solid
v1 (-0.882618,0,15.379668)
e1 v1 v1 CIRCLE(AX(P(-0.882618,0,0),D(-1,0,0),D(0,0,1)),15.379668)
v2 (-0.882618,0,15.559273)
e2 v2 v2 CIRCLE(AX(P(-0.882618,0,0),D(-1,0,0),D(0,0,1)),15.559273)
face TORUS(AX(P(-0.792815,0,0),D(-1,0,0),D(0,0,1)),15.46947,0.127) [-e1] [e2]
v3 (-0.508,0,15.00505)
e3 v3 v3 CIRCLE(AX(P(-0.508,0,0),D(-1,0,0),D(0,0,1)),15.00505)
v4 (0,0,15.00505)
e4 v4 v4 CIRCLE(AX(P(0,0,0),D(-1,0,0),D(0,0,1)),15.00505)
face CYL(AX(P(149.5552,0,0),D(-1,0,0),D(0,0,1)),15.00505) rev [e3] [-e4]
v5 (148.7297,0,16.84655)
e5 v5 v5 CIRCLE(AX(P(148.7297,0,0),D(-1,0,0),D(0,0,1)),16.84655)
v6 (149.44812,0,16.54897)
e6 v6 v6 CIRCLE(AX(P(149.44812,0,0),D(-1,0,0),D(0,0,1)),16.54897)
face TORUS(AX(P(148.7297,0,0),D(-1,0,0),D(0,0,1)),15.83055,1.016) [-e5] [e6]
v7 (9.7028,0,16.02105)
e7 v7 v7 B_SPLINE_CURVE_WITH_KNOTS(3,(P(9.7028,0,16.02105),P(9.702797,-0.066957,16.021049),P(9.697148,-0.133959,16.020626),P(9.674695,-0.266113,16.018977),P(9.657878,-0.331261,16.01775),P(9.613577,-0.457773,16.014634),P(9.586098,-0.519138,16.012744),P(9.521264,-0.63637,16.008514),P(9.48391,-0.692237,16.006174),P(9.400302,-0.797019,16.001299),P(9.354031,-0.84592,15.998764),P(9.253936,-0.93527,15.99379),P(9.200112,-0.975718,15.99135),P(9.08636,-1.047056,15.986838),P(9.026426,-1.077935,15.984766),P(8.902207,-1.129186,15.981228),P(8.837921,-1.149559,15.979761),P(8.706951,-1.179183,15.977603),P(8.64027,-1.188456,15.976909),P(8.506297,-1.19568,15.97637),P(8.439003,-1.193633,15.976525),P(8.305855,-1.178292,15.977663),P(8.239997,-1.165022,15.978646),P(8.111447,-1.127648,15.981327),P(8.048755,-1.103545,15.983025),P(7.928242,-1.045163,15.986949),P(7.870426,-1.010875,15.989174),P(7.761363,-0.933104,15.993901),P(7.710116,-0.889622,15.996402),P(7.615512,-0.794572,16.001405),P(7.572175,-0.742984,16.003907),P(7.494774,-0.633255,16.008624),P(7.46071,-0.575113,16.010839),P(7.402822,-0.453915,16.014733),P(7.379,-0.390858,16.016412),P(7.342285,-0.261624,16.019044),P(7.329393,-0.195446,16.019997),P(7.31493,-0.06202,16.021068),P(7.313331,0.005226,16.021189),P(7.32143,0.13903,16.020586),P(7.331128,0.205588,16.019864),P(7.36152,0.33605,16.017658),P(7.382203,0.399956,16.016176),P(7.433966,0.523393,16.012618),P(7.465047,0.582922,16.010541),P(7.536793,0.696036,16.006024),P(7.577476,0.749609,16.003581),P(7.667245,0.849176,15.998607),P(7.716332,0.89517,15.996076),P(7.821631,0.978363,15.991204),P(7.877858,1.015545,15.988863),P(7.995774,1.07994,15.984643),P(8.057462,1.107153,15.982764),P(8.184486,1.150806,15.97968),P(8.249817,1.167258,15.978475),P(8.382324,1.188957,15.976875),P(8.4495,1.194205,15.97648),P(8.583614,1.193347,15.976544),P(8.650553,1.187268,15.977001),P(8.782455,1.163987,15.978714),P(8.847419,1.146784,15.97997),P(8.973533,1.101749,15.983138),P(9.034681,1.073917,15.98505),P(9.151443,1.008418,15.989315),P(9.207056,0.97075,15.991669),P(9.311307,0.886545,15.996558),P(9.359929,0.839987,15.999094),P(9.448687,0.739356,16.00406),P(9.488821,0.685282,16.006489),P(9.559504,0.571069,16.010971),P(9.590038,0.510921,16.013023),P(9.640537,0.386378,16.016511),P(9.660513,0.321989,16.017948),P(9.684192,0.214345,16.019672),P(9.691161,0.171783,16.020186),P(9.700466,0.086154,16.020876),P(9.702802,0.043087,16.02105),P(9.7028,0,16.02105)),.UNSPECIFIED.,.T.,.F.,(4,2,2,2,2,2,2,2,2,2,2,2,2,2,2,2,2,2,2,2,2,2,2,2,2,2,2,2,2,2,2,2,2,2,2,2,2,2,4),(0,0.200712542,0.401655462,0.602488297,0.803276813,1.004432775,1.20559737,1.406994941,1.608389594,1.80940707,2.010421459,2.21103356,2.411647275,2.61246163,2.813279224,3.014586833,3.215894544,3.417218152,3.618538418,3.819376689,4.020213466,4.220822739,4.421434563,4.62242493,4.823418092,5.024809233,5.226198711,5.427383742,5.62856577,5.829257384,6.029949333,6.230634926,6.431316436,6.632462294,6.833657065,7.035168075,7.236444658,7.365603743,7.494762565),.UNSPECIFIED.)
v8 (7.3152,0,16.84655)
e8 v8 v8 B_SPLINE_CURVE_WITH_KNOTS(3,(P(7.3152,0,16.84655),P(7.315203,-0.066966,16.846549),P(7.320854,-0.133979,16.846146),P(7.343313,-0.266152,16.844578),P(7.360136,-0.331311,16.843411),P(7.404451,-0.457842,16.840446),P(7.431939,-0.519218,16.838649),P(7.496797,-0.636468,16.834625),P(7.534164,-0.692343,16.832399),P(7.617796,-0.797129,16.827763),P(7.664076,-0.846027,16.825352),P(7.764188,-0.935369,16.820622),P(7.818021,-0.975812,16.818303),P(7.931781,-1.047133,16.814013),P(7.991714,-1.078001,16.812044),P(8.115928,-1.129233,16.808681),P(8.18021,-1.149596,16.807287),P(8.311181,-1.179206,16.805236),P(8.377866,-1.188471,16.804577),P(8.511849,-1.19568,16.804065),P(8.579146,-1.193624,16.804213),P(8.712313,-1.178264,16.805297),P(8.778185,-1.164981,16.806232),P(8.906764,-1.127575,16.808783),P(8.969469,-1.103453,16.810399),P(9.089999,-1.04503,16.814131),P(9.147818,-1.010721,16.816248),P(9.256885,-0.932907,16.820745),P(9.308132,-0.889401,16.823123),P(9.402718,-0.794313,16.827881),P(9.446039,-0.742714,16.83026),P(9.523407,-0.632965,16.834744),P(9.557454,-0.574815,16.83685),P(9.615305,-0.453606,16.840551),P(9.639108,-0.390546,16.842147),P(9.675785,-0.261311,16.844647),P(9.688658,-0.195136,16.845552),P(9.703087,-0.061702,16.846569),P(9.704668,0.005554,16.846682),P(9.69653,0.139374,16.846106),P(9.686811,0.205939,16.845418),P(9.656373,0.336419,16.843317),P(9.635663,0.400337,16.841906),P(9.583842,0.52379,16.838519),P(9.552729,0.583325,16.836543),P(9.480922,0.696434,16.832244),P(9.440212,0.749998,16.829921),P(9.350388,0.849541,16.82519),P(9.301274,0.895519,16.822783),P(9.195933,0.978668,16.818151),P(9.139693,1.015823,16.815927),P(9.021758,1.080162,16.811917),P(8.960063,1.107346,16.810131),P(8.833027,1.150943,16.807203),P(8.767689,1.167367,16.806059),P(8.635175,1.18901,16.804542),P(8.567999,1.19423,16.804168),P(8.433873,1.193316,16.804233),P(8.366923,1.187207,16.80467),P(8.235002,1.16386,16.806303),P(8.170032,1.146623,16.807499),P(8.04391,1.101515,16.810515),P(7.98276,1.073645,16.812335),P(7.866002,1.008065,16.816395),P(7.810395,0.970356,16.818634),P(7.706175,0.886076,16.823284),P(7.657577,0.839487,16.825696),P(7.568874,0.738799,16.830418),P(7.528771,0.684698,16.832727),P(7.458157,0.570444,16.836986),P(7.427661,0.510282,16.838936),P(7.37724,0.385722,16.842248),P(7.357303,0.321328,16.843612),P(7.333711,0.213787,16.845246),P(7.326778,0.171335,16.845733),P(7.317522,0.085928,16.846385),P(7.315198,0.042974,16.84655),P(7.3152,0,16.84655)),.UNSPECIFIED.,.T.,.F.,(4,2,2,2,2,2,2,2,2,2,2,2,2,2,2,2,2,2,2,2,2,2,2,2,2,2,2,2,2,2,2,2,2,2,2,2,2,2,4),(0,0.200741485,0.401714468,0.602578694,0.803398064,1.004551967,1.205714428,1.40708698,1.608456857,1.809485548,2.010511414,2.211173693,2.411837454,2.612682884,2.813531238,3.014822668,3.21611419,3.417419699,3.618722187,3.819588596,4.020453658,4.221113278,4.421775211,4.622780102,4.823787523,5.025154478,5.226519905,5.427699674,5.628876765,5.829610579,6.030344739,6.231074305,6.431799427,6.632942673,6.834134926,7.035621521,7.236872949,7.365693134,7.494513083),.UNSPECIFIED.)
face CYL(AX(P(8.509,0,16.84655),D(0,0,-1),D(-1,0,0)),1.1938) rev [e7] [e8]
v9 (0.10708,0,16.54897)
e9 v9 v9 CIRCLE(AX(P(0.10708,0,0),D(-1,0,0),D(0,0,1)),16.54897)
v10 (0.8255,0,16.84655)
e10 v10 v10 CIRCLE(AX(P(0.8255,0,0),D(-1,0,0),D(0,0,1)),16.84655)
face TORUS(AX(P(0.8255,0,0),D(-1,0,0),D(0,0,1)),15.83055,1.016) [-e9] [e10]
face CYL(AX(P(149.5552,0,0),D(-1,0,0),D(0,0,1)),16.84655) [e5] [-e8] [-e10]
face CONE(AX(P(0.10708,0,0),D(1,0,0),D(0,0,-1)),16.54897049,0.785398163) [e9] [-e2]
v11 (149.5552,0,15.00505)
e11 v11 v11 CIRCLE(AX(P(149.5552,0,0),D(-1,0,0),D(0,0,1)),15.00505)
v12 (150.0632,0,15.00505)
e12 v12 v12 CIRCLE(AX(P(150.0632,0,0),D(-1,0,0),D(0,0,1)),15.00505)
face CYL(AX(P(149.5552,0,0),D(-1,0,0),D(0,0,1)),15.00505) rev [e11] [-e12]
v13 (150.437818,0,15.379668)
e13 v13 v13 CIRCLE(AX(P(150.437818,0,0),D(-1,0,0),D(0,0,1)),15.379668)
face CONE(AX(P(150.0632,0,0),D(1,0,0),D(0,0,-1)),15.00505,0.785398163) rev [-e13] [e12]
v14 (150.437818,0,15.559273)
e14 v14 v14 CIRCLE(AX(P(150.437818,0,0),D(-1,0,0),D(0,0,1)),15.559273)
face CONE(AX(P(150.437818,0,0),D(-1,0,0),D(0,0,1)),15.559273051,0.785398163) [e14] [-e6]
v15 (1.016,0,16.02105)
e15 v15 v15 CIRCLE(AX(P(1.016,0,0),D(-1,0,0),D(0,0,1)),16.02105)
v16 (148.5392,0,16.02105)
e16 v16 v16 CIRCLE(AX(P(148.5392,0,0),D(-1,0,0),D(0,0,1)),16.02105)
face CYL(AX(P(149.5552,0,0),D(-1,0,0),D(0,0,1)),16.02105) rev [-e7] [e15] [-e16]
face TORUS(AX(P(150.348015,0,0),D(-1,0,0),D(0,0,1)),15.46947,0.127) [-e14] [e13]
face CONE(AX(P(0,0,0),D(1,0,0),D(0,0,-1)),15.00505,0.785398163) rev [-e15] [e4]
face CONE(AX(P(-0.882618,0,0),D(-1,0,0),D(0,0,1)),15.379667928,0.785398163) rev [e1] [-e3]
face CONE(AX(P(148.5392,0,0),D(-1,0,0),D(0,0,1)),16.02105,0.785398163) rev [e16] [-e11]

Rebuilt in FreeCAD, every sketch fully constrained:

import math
import FreeCAD as App
import Part
import Sketcher
Q = App.Units.Quantity

doc = App.newDocument("Part")
params = doc.addObject("Spreadsheet::Sheet", "Params")
for row, (alias, value) in enumerate([
    ("sketch1_radius", "0.04 in"),
    ("sketch1_radius2", "0.005 in"),
    ("sketch1_width", "0.02 in"),
    ("sketch1_width2", "5.808 in"),
    ("sketch1_width3", "5.823 in"),
    ("revolution_angle", "360 deg"),
    ("sketch2_diameter", "0.094 in"),
    ("pocket1_length", "16.84655 mm"),
], start=1):
    params.set(f"A{row}", alias)
    params.set(f"B{row}", "=" + value)
    params.setAlias(f"B{row}", alias)

body = doc.addObject("PartDesign::Body", "Body")

# Sketch on XY plane
sketch1 = body.newObject("Sketcher::SketchObject", "Sketch")
sketch1.AttachmentSupport = (doc.getObject("XY_Plane"), [""])
sketch1.MapMode = "FlatFace"
sketch1.addGeometry(Part.LineSegment(App.Vector(-0.882618, 15.379668, 0), App.Vector(-0.508, 15.00505, 0)), False)
sketch1.addGeometry(Part.LineSegment(App.Vector(-0.508, 15.00505, 0), App.Vector(0, 15.00505, 0)), False)
sketch1.addGeometry(Part.LineSegment(App.Vector(0, 15.00505, 0), App.Vector(1.016, 16.02105, 0)), False)
sketch1.addGeometry(Part.LineSegment(App.Vector(1.016, 16.02105, 0), App.Vector(148.5392, 16.02105, 0)), False)
sketch1.addGeometry(Part.LineSegment(App.Vector(148.5392, 16.02105, 0), App.Vector(149.5552, 15.00505, 0)), False)
sketch1.addGeometry(Part.LineSegment(App.Vector(149.5552, 15.00505, 0), App.Vector(150.0632, 15.00505, 0)), False)
sketch1.addGeometry(Part.LineSegment(App.Vector(150.0632, 15.00505, 0), App.Vector(150.437818, 15.379668, 0)), False)
sketch1.addGeometry(Part.ArcOfCircle(Part.Circle(App.Vector(150.348015, 15.46947, 0), App.Vector(0, 0, 1), 0.127), math.radians(-45), math.radians(45)), False)
sketch1.addGeometry(Part.LineSegment(App.Vector(150.437818, 15.559273, 0), App.Vector(149.44812, 16.54897, 0)), False)
sketch1.addGeometry(Part.ArcOfCircle(Part.Circle(App.Vector(148.7297, 15.83055, 0), App.Vector(0, 0, 1), 1.016), math.radians(45), math.radians(90)), False)
sketch1.addGeometry(Part.LineSegment(App.Vector(148.7297, 16.84655, 0), App.Vector(0.8255, 16.84655, 0)), False)
sketch1.addGeometry(Part.ArcOfCircle(Part.Circle(App.Vector(0.8255, 15.83055, 0), App.Vector(0, 0, 1), 1.016), math.radians(90), math.radians(135)), False)
sketch1.addGeometry(Part.LineSegment(App.Vector(0.10708, 16.54897, 0), App.Vector(-0.882618, 15.559273, 0)), False)
sketch1.addGeometry(Part.ArcOfCircle(Part.Circle(App.Vector(-0.792815, 15.46947, 0), App.Vector(0, 0, 1), 0.127), math.radians(135), math.radians(225)), False)
sketch1.addConstraint(Sketcher.Constraint("Coincident", 0, 2, 1, 1))
sketch1.addConstraint(Sketcher.Constraint("Coincident", 1, 2, 2, 1))
sketch1.addConstraint(Sketcher.Constraint("Coincident", 2, 2, 3, 1))
sketch1.addConstraint(Sketcher.Constraint("Coincident", 3, 2, 4, 1))
sketch1.addConstraint(Sketcher.Constraint("Coincident", 4, 2, 5, 1))
sketch1.addConstraint(Sketcher.Constraint("Coincident", 5, 2, 6, 1))
sketch1.addConstraint(Sketcher.Constraint("Tangent", 6, 2, 7, 1))
sketch1.addConstraint(Sketcher.Constraint("Tangent", 7, 2, 8, 1))
sketch1.addConstraint(Sketcher.Constraint("Tangent", 8, 2, 9, 1))
sketch1.addConstraint(Sketcher.Constraint("Tangent", 9, 2, 10, 1))
sketch1.addConstraint(Sketcher.Constraint("Tangent", 10, 2, 11, 1))
sketch1.addConstraint(Sketcher.Constraint("Tangent", 11, 2, 12, 1))
sketch1.addConstraint(Sketcher.Constraint("Tangent", 12, 2, 13, 1))
sketch1.addConstraint(Sketcher.Constraint("Tangent", 13, 2, 0, 1))
sketch1.addConstraint(Sketcher.Constraint("Horizontal", 1))
sketch1.addConstraint(Sketcher.Constraint("Horizontal", 3))
sketch1.addConstraint(Sketcher.Constraint("Horizontal", 5))
sketch1.addConstraint(Sketcher.Constraint("Horizontal", 10))
sketch1.addConstraint(Sketcher.Constraint("Equal", 9, 11))
sketch1.addConstraint(Sketcher.Constraint("Equal", 7, 13))
sketch1.addConstraint(Sketcher.Constraint("PointOnObject", 1, 2, -2))
sketch1.addConstraint(Sketcher.Constraint("Perpendicular", 0, 2))
sketch1.addConstraint(Sketcher.Constraint("Perpendicular", 2, 4))
sketch1.addConstraint(Sketcher.Constraint("Perpendicular", 4, 6))
sketch1.addConstraint(Sketcher.Constraint("Perpendicular", 6, 8))
sketch1.addConstraint(Sketcher.Constraint("Perpendicular", 8, 12))
sketch1.addConstraint(Sketcher.Constraint("Horizontal", 7, 3, 13, 3))
sketch1.addConstraint(Sketcher.Constraint("Horizontal", 1, 2, 4, 2))
sketch1.addConstraint(Sketcher.Constraint("Horizontal", 8, 2, 11, 2))
sketch1.addConstraint(Sketcher.Constraint("Equal", 1, 5))
sketch1.addConstraint(Sketcher.Constraint("Radius", 9, Q("0.04 in")))
sketch1.addConstraint(Sketcher.Constraint("Radius", 7, Q("0.005 in")))
sketch1.addConstraint(Sketcher.Constraint("DistanceX", 1, 1, 1, 2, Q("0.02 in")))
sketch1.addConstraint(Sketcher.Constraint("DistanceX", 3, 1, 3, 2, Q("5.808 in")))
sketch1.addConstraint(Sketcher.Constraint("DistanceX", 10, 2, 10, 1, Q("5.823 in")))
sketch1.addConstraint(Sketcher.Constraint("DistanceX", -1, 1, 2, 2, Q("0.04 in")))
sketch1.addConstraint(Sketcher.Constraint("DistanceY", 0, 2, 11, 3, Q("0.0325 in")))
sketch1.addConstraint(Sketcher.Constraint("DistanceY", -1, 1, 7, 3, Q("15.46947 mm")))
sketch1.setExpression("Constraints[30]", "Params.sketch1_radius")
sketch1.setExpression("Constraints[31]", "Params.sketch1_radius2")
sketch1.setExpression("Constraints[32]", "Params.sketch1_width")
sketch1.setExpression("Constraints[33]", "Params.sketch1_width2")
sketch1.setExpression("Constraints[34]", "Params.sketch1_width3")
revolution = body.newObject("PartDesign::Revolution", "Revolution")
revolution.Profile = sketch1
revolution.ReferenceAxis = (sketch1, ["H_Axis"])
revolution.setExpression("Angle", "Params.revolution_angle")

# Sketch on XY plane
sketch2 = body.newObject("Sketcher::SketchObject", "Sketch001")
sketch2.AttachmentSupport = (doc.getObject("XY_Plane"), [""])
sketch2.MapMode = "FlatFace"
sketch2.addGeometry(Part.Circle(App.Vector(8.509, 0, 0), App.Vector(0, 0, 1), 1.1938), False)
sketch2.addConstraint(Sketcher.Constraint("PointOnObject", 0, 3, -1))
sketch2.addConstraint(Sketcher.Constraint("Diameter", 0, Q("0.094 in")))
sketch2.addConstraint(Sketcher.Constraint("DistanceX", -1, 1, 0, 3, Q("0.335 in")))
sketch2.setExpression("Constraints[1]", "Params.sketch2_diameter")
pocket1 = body.newObject("PartDesign::Pocket", "Pocket")
pocket1.Profile = sketch2
pocket1.setExpression("Length", "Params.pocket1_length")
pocket1.Reversed = True

doc.recompute()
